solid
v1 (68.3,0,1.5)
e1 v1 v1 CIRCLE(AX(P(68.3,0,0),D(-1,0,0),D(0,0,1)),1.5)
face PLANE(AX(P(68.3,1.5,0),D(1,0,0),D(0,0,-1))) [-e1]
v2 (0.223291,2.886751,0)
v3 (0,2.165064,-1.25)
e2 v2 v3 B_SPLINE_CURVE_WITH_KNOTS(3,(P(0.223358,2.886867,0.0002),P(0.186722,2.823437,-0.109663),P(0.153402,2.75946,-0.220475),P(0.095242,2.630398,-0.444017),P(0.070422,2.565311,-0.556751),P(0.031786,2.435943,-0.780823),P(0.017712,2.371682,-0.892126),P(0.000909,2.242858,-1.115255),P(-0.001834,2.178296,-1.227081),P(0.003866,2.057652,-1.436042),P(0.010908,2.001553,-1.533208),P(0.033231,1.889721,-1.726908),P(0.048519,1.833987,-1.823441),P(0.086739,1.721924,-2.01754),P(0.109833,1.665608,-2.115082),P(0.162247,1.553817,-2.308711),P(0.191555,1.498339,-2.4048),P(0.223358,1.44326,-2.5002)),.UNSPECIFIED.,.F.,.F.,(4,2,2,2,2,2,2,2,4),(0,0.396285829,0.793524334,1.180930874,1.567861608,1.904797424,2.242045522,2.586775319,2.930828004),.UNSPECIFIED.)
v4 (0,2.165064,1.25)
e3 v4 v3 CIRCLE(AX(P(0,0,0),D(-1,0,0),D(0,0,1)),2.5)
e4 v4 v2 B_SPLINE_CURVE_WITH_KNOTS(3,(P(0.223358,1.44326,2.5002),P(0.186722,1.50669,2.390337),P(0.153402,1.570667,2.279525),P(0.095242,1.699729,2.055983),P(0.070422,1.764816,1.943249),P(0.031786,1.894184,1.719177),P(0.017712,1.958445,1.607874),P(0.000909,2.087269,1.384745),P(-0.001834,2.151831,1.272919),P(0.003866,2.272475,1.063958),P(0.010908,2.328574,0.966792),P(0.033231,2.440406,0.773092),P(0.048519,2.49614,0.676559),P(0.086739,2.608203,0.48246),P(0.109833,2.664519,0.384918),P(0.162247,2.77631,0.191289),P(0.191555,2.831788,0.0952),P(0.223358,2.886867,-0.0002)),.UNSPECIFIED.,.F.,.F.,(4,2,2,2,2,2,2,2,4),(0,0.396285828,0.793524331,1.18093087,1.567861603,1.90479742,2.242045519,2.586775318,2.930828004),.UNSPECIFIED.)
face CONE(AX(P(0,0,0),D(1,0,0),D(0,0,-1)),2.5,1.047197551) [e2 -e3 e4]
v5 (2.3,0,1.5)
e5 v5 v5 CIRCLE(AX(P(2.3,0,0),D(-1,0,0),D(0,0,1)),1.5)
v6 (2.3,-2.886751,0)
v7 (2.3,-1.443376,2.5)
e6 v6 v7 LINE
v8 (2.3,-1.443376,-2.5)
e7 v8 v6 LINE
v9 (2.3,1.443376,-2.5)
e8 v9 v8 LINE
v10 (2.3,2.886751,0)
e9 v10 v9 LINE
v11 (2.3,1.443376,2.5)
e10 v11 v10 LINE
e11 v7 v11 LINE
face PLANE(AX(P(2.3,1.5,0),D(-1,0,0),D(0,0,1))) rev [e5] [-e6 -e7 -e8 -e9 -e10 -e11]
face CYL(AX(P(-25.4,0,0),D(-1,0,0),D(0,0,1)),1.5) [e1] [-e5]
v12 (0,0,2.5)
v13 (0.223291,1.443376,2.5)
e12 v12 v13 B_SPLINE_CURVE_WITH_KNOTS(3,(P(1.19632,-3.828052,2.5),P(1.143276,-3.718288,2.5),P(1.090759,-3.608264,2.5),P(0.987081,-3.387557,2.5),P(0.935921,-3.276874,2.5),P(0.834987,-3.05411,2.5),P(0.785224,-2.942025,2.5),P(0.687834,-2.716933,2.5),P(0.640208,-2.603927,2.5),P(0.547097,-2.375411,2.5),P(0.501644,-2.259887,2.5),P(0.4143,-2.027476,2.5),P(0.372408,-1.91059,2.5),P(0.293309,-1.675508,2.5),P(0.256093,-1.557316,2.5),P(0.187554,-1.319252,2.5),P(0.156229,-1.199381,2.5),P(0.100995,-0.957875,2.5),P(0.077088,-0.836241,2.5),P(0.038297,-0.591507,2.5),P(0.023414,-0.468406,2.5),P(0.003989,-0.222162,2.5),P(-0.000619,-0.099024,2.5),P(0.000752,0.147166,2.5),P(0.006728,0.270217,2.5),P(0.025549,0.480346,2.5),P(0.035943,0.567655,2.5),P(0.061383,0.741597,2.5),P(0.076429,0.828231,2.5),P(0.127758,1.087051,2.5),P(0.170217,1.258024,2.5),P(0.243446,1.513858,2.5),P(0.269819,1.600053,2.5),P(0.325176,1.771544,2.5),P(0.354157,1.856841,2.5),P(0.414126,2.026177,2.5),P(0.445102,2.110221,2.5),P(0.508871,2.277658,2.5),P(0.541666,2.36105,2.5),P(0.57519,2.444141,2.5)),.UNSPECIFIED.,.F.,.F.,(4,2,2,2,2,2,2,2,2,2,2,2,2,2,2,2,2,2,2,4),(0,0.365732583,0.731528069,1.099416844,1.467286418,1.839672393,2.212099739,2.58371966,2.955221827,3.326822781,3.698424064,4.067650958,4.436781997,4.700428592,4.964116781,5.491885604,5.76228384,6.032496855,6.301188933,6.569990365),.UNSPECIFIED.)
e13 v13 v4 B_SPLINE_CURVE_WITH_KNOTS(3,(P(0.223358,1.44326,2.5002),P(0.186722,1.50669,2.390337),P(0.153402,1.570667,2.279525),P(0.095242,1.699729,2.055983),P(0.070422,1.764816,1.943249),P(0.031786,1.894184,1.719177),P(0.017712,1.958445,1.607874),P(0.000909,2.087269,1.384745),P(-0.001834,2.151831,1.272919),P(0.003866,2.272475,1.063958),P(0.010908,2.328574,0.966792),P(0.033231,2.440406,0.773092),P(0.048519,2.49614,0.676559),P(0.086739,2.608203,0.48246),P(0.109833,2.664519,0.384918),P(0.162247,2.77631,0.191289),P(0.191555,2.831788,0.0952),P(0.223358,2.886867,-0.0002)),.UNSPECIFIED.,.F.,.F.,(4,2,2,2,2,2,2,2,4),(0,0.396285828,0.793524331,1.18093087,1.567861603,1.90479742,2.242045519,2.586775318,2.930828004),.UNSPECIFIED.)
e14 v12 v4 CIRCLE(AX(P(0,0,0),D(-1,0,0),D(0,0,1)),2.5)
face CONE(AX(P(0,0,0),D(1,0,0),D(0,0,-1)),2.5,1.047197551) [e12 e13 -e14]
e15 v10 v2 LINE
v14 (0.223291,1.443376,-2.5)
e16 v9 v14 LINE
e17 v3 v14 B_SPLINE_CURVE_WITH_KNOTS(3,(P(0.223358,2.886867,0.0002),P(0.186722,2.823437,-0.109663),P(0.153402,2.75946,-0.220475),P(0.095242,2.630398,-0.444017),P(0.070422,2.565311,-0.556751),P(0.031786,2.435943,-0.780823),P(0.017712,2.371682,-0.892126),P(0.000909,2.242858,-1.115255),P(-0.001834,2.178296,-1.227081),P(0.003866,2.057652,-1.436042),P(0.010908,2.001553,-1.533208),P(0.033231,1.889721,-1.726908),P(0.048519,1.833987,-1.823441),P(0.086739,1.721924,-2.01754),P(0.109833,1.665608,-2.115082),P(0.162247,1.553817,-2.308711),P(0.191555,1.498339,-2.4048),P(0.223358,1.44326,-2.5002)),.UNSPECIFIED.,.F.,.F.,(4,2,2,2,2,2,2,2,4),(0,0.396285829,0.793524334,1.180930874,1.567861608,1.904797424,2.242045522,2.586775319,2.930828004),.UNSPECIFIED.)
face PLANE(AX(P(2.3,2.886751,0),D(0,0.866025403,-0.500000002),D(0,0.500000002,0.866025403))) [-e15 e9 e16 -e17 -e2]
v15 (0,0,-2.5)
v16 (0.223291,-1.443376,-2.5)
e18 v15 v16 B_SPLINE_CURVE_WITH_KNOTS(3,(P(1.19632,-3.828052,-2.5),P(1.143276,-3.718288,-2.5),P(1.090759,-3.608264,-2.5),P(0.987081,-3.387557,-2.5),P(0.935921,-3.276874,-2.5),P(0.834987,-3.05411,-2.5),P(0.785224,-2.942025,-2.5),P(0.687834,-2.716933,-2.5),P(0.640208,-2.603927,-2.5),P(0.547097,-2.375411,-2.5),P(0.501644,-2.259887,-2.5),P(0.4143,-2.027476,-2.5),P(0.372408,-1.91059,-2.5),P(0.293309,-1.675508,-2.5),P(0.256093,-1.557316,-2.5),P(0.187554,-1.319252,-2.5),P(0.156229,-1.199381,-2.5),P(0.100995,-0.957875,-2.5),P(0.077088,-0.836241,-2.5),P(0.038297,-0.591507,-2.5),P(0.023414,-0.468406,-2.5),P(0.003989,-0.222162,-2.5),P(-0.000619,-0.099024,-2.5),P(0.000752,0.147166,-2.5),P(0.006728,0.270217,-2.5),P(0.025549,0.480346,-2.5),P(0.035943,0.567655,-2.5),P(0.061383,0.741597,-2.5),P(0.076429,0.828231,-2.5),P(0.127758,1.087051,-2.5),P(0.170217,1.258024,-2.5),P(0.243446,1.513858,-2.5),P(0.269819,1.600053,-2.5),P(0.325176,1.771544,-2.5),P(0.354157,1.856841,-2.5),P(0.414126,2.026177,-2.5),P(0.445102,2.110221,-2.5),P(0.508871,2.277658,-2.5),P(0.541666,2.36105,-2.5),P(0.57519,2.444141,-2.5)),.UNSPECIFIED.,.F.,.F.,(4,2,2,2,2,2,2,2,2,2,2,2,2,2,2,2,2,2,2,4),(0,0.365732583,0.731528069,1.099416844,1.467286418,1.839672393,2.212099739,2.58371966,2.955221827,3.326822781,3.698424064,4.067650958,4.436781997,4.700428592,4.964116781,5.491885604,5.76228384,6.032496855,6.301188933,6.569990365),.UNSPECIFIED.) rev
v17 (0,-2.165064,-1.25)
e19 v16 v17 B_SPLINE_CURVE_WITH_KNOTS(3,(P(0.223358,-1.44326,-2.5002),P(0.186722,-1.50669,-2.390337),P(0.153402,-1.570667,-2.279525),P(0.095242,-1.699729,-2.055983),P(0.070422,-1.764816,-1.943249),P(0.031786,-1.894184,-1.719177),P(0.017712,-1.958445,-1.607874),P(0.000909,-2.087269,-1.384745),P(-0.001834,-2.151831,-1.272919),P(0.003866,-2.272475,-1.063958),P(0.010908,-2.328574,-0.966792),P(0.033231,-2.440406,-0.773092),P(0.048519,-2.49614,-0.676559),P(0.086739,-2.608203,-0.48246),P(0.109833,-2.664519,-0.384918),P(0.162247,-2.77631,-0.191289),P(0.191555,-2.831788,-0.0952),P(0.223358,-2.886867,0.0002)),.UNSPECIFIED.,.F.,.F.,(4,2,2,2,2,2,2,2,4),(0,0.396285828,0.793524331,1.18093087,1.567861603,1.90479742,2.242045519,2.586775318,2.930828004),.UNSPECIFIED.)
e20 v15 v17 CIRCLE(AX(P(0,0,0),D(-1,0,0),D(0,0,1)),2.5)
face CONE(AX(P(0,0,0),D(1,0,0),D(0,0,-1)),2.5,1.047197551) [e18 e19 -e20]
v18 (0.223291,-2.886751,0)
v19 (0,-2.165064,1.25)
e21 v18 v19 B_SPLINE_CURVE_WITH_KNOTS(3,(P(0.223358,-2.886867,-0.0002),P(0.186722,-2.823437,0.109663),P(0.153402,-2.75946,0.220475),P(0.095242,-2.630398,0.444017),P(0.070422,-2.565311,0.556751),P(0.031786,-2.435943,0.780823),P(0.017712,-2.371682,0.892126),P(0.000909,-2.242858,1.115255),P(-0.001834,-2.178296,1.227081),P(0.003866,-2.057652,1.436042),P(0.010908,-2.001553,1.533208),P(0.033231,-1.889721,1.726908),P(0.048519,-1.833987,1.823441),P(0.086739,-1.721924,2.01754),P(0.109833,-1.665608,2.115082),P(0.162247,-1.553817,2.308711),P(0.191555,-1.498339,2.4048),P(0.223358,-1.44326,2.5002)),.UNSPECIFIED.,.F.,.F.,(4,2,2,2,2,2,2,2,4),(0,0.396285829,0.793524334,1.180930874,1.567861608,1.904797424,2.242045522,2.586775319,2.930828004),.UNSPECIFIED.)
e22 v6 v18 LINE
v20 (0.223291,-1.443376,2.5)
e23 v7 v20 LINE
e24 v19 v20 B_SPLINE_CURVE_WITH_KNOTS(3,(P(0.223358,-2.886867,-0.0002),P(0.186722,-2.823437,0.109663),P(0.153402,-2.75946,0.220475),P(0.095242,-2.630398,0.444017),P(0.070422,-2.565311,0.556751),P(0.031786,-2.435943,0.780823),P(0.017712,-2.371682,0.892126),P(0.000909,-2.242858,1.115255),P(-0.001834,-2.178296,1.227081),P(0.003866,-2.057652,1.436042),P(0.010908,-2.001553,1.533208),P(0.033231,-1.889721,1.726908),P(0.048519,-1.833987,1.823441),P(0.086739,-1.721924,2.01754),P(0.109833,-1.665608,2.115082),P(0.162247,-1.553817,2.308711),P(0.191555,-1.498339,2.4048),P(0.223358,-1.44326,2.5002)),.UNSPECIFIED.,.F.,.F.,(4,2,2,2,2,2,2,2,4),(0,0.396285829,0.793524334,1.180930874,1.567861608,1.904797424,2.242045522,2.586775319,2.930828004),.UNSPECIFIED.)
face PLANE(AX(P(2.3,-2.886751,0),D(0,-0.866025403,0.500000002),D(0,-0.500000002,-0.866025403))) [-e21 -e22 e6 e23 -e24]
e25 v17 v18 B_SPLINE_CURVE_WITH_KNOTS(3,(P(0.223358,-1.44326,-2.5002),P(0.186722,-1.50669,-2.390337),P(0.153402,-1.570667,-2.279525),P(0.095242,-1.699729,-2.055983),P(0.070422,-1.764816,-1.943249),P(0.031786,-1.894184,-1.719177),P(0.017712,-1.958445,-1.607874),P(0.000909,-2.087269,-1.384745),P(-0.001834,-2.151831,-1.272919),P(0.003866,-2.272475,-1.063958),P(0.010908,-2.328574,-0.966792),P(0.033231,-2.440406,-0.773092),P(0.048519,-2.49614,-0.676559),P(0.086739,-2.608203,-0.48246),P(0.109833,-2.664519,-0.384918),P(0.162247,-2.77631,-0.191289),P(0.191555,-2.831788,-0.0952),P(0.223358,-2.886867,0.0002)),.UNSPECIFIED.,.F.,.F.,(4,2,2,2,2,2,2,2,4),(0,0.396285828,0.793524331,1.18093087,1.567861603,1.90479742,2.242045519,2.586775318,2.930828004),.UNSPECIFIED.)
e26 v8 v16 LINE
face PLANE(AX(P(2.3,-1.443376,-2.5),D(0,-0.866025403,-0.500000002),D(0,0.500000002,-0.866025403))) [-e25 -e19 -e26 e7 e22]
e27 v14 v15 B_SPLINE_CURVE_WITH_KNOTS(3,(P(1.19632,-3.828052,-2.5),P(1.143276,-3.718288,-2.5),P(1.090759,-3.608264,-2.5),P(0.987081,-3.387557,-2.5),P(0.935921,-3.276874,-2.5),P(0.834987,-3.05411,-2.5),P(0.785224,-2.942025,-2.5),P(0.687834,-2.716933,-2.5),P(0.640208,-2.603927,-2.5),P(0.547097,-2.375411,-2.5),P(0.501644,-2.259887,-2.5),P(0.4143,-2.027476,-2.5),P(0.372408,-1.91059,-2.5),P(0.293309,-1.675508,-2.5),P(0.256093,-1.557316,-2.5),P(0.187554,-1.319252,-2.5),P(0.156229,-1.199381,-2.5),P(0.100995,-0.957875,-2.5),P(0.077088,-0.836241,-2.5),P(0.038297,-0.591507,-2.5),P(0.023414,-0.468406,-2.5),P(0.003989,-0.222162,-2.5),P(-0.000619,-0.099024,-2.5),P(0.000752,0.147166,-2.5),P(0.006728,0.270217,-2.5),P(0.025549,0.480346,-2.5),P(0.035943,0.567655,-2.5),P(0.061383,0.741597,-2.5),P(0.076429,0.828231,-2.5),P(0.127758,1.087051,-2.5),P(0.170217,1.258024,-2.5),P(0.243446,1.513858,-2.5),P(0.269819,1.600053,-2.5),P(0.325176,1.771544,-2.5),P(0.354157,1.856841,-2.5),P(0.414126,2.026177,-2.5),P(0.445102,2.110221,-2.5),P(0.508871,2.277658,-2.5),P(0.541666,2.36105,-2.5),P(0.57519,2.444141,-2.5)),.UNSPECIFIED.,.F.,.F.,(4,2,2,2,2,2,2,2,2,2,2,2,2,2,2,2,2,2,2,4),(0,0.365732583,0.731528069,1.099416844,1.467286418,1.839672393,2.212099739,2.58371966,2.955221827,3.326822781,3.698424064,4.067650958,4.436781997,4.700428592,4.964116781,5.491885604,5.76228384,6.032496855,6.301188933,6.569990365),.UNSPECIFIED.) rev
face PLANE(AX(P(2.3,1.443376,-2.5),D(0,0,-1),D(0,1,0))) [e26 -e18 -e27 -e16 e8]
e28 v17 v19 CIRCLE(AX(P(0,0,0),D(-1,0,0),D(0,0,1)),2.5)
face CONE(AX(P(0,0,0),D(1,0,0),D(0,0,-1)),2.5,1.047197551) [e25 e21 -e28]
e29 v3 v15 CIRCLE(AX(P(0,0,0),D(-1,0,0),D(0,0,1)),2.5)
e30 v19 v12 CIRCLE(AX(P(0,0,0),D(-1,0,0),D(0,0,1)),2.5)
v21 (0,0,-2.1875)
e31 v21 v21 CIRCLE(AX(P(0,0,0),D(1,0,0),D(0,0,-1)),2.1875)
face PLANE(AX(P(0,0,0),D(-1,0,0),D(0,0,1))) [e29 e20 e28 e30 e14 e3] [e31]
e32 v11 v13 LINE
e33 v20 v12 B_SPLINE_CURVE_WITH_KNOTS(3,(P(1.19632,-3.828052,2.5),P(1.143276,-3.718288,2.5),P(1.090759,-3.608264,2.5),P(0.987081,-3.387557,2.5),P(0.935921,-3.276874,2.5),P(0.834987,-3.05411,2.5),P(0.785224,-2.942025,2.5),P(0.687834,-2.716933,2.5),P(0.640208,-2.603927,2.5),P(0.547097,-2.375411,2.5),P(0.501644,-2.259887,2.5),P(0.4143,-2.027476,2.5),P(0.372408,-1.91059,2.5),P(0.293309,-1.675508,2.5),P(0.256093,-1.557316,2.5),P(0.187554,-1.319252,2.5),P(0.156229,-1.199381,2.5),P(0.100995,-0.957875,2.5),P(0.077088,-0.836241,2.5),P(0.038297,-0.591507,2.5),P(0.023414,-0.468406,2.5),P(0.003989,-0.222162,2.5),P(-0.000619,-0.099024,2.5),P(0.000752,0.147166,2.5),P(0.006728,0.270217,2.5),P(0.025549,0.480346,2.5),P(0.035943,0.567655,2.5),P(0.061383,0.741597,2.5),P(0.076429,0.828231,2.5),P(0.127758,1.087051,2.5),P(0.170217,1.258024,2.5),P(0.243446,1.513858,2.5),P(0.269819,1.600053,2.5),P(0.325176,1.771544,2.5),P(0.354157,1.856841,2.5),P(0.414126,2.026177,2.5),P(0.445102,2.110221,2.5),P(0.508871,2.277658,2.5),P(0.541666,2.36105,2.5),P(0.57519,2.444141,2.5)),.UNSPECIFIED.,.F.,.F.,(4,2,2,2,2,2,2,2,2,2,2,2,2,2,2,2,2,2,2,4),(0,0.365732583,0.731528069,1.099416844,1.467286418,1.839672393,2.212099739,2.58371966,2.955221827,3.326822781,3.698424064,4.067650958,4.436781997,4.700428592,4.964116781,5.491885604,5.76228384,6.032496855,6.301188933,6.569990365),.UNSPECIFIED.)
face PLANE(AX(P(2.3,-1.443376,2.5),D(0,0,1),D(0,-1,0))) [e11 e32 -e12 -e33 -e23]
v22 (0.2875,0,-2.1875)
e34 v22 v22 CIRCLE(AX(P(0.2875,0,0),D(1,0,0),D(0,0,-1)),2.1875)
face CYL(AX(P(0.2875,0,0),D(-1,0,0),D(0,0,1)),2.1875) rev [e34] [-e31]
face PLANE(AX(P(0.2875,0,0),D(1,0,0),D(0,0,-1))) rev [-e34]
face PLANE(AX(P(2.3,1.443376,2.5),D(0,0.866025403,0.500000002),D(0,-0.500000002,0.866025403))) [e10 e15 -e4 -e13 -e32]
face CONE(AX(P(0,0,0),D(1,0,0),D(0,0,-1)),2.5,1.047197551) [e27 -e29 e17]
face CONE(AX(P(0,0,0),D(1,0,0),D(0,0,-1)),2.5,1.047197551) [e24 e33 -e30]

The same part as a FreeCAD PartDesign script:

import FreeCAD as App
import Part
import Sketcher

V = App.Vector
Q = App.Units.Quantity


def add_polygon(sketch, points):
    """Adds a closed chain of lines whose ends are joined by coincident constraints."""
    first, n = sketch.GeometryCount, len(points)
    for a, b in zip(points, points[1:] + points[:1]):
        sketch.addGeometry(Part.LineSegment(App.Vector(*a, 0), App.Vector(*b, 0)), False)
    for i in range(n):
        sketch.addConstraint(Sketcher.Constraint("Coincident", first + i, 2, first + (i + 1) % n, 1))

doc = App.newDocument("Part")
body = doc.addObject("PartDesign::Body", "Body")

# Sketch on XY plane
sketch1 = body.newObject("Sketcher::SketchObject", "Sketch")
sketch1.AttachmentSupport = (doc.getObject("XY_Plane"), [""])
sketch1.MapMode = "FlatFace"
add_polygon(sketch1, [(2.3, 1.5), (2.3, 2.89), (0.22, 2.89), (0, 2.5), (0, 0), (68.3, 0), (68.3, 1.5)])  # lines 0-6
sketch1.addConstraint([
    Sketcher.Constraint("Vertical", 0),
    Sketcher.Constraint("Horizontal", 1),
    Sketcher.Constraint("Vertical", 3),
    Sketcher.Constraint("Horizontal", 4),
    Sketcher.Constraint("Vertical", 5),
    Sketcher.Constraint("Horizontal", 6),
    Sketcher.Constraint("Coincident", 3, 2, -1, 1),
    Sketcher.Constraint("DistanceX", 6, 2, 6, 1, 66.0),
    Sketcher.Constraint("Angle", 2, Q("-120 deg")),
    Sketcher.Constraint("DistanceX", 4, 1, 4, 2, 68.3),
    Sketcher.Constraint("DistanceY", 3, 2, 3, 1, 2.5),
    Sketcher.Constraint("DistanceY", 5, 1, 5, 2, 1.5),
    Sketcher.Constraint("DistanceX", 1, 2, 1, 1, 2.07666),
])
revolution = body.newObject("PartDesign::Revolution", "Revolution")
revolution.Profile = sketch1
revolution.ReferenceAxis = (sketch1, ["H_Axis"])
revolution.Angle = 360

# Sketch on YZ plane
sketch2 = body.newObject("Sketcher::SketchObject", "Sketch001")
sketch2.AttachmentSupport = (doc.getObject("YZ_Plane"), [""])
sketch2.MapMode = "FlatFace"
sketch2.addGeometry(Part.Circle(V(0, 0, 0), V(0, 0, 1), 2.9), False)  # 0
add_polygon(sketch2, [(-1.4, 2.5), (1.4, 2.5), (2.9, 0), (1.4, -2.5), (-1.4, -2.5), (-2.9, 0)])  # lines 1-6
sketch2.addConstraint([
    Sketcher.Constraint("Horizontal", 1),
    Sketcher.Constraint("Horizontal", 4),
    Sketcher.Constraint("Coincident", 0, 3, -1, 1),
    Sketcher.Constraint("Symmetric", 1, 2, 4, 2, -1, 1),
    Sketcher.Constraint("Symmetric", 2, 2, 5, 2, -1, 1),
    Sketcher.Constraint("PointOnObject", 2, 2, -1),
    Sketcher.Constraint("Parallel", 3, 6),
    Sketcher.Constraint("Vertical", 1, 2, 3, 2),
    Sketcher.Constraint("Angle", 2, Q("-60 deg")),
    Sketcher.Constraint("DistanceY", 3, 2, 1, 2, 5.0),
    Sketcher.Constraint("Diameter", 0, 5.831409),
    Sketcher.Constraint("DistanceX", 1, 1, 1, 2, 2.886751),
])
pocket1 = body.newObject("PartDesign::Pocket", "Pocket")
pocket1.Profile = sketch2
pocket1.Length = 2.3
pocket1.Reversed = True

# Sketch on YZ plane
sketch3 = body.newObject("Sketcher::SketchObject", "Sketch002")
sketch3.AttachmentSupport = (doc.getObject("YZ_Plane"), [""])
sketch3.MapMode = "FlatFace"
sketch3.addGeometry(Part.Circle(V(0, 0, 0), V(0, 0, 1), 2.2), False)
sketch3.addConstraint([
    Sketcher.Constraint("Coincident", 0, 3, -1, 1),
    Sketcher.Constraint("Diameter", 0, 4.375),
])
pocket2 = body.newObject("PartDesign::Pocket", "Pocket001")
pocket2.Profile = sketch3
pocket2.Length = 0.2875
pocket2.Reversed = True

doc.recompute()
